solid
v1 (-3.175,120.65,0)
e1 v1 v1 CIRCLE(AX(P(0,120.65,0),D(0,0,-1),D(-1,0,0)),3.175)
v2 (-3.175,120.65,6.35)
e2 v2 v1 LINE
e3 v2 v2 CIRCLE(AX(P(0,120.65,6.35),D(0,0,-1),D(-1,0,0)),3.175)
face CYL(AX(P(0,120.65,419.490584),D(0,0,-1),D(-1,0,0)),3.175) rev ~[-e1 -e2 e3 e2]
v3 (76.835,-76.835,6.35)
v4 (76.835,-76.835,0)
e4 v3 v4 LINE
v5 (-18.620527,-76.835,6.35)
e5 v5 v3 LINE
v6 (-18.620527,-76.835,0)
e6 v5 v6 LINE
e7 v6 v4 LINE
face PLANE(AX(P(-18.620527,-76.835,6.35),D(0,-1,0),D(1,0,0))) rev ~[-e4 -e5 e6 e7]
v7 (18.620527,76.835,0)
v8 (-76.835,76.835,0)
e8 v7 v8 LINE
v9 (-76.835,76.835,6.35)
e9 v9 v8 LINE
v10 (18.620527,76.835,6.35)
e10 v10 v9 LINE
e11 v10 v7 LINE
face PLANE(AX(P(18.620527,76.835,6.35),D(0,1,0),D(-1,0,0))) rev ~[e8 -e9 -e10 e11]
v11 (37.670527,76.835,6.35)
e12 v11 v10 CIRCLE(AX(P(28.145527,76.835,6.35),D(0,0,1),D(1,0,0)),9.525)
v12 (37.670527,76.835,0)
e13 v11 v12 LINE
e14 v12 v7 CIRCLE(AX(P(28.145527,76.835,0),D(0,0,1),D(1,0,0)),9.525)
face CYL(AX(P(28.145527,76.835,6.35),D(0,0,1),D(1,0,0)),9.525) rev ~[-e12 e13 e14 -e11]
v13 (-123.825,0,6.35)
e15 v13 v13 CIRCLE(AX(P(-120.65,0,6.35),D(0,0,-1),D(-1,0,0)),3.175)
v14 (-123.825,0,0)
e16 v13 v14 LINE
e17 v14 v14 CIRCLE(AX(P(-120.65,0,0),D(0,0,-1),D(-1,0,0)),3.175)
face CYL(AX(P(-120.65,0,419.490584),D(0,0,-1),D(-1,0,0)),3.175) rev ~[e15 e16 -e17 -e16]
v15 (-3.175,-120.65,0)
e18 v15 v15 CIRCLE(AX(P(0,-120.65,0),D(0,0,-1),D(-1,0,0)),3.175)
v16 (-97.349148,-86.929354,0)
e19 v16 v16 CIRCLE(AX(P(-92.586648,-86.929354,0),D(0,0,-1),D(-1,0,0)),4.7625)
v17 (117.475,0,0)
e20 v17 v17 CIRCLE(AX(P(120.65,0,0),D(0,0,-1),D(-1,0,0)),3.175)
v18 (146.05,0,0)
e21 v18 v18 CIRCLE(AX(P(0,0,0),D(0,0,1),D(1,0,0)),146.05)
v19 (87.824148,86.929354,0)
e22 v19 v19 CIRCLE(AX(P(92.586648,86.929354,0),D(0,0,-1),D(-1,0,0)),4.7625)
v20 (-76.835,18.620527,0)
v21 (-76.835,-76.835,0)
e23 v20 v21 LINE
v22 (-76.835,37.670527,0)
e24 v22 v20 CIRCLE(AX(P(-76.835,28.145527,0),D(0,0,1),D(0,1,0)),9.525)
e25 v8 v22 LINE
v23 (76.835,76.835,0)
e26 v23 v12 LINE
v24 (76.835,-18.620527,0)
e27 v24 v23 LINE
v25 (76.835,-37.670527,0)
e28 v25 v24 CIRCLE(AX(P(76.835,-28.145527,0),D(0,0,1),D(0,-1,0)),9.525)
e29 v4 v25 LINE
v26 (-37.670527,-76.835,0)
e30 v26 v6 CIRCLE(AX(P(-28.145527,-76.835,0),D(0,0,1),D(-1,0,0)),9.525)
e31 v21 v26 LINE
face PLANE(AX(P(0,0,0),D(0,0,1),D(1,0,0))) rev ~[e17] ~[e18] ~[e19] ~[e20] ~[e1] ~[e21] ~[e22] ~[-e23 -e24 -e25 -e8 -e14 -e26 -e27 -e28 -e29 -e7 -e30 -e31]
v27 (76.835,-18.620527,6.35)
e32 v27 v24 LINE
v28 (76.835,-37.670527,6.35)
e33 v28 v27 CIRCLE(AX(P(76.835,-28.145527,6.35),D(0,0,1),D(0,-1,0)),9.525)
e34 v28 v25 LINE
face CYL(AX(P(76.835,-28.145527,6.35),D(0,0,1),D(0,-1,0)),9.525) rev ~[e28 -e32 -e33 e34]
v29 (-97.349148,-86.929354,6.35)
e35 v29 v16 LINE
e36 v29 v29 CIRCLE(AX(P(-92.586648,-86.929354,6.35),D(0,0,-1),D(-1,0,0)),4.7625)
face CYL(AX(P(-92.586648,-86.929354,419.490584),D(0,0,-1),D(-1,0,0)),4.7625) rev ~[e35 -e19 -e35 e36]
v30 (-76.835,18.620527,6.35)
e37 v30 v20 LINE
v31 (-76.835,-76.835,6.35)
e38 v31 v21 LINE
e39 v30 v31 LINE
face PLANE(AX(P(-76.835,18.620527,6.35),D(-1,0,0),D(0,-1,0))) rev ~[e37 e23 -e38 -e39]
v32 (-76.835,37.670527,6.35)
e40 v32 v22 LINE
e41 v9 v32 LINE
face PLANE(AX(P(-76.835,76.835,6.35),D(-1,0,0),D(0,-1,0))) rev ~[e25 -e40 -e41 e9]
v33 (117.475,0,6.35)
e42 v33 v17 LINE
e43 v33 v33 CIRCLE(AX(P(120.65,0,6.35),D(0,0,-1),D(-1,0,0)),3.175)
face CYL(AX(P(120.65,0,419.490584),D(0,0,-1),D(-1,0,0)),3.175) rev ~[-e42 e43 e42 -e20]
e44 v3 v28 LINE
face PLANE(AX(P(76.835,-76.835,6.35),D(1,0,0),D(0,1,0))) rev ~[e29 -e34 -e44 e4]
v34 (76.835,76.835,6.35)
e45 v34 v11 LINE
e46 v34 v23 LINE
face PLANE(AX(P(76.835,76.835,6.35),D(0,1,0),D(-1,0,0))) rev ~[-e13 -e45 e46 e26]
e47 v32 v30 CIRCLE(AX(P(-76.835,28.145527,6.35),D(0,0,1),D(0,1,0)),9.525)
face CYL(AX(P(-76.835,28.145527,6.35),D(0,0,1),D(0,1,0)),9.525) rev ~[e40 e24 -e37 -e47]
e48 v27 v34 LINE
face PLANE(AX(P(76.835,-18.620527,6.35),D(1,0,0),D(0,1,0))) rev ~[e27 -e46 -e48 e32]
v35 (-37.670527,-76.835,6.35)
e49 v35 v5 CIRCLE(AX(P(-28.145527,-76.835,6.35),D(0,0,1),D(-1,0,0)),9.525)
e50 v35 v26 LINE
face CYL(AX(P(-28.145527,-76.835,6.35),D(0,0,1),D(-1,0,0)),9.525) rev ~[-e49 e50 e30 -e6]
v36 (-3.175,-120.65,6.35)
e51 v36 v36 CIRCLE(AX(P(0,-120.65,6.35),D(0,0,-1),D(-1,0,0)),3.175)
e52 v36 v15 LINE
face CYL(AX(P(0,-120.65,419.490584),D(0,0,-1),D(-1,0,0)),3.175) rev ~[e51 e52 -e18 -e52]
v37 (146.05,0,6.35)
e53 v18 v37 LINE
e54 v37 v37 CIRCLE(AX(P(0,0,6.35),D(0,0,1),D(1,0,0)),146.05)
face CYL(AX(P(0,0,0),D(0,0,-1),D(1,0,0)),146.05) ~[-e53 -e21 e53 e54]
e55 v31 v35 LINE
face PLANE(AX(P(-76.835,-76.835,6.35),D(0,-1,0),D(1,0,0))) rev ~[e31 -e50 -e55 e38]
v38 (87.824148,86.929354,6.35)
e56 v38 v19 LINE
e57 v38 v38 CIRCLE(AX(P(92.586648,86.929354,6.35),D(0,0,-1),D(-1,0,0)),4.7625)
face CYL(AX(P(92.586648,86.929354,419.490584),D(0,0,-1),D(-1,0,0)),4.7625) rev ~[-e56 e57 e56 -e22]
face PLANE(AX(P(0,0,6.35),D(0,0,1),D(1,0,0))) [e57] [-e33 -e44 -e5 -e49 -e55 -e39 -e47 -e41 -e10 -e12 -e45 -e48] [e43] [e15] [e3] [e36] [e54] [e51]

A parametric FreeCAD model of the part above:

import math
import FreeCAD as App
import Part
import Sketcher
from FreeCAD import Vector
Q = App.Units.Quantity

doc = App.newDocument("Part")
body = doc.addObject("PartDesign::Body", "Body")

# Sketch on XY plane
sketch1 = doc.addObject("Sketcher::SketchObject", "Sketch")
body.addObject(sketch1)
sketch1.AttachmentSupport = (doc.XY_Plane, [""])
sketch1.MapMode = "FlatFace"
sketch1.addGeometry(Part.Circle(Vector(0, 0, 0), Vector(0, 0, 1), 146.05), False)
sketch1.addConstraint(Sketcher.Constraint("Coincident", 0, 3, -1, 1))
sketch1.addConstraint(Sketcher.Constraint("Diameter", 0, Q("11.5 in")))
pad1 = doc.addObject("PartDesign::Pad", "Pad")
body.addObject(pad1)
pad1.Profile = sketch1
pad1.Length = Q("0.25 in")

# Sketch on XY plane
sketch2 = doc.addObject("Sketcher::SketchObject", "Sketch001")
body.addObject(sketch2)
sketch2.AttachmentSupport = (doc.XY_Plane, [""])
sketch2.MapMode = "FlatFace"
sketch2.AttachmentOffset = App.Placement(Vector(0, 0, 0.25 * 25.4), App.Rotation())
sketch2.addGeometry(Part.Circle(Vector(120.65, 0, 0), Vector(0, 0, 1), 3.175), False)
sketch2.addGeometry(Part.Circle(Vector(0, -120.65, 0), Vector(0, 0, 1), 3.175), False)
sketch2.addGeometry(Part.Circle(Vector(-120.65, 0, 0), Vector(0, 0, 1), 3.175), False)
sketch2.addGeometry(Part.Circle(Vector(0, 120.65, 0), Vector(0, 0, 1), 3.175), False)
sketch2.addConstraint(Sketcher.Constraint("Equal", 0, 1))
sketch2.addConstraint(Sketcher.Constraint("Equal", 1, 2))
sketch2.addConstraint(Sketcher.Constraint("Equal", 2, 3))
sketch2.addConstraint(Sketcher.Constraint("Symmetric", 0, 3, 2, 3, -1, 1))
sketch2.addConstraint(Sketcher.Constraint("Symmetric", 1, 3, 3, 3, -1, 1))
sketch2.addConstraint(Sketcher.Constraint("PointOnObject", 0, 3, -1))
sketch2.addConstraint(Sketcher.Constraint("PointOnObject", 1, 3, -2))
sketch2.addConstraint(Sketcher.Constraint("Diameter", 0, Q("0.25 in")))
sketch2.addConstraint(Sketcher.Constraint("DistanceX", 2, 3, 0, 3, Q("9.5 in")))
sketch2.addConstraint(Sketcher.Constraint("DistanceY", 1, 3, 3, 3, Q("9.5 in")))
doc.recompute()
hole = doc.addObject("PartDesign::Hole", "Hole")
body.addObject(hole)
hole.Profile = sketch2
hole.ThreadType = "None"
hole.Diameter = Q("0.25 in")
hole.DepthType = "ThroughAll"

# Sketch on XY plane
sketch3 = doc.addObject("Sketcher::SketchObject", "Sketch002")
body.addObject(sketch3)
sketch3.AttachmentSupport = (doc.XY_Plane, [""])
sketch3.MapMode = "FlatFace"
sketch3.AttachmentOffset = App.Placement(Vector(0, 0, 0.25 * 25.4), App.Rotation())
sketch3.addGeometry(Part.Circle(Vector(-92.586648, -86.929354, 0), Vector(0, 0, 1), 4.7625), False)
sketch3.addGeometry(Part.Circle(Vector(92.586648, 86.929354, 0), Vector(0, 0, 1), 4.7625), False)
sketch3.addConstraint(Sketcher.Constraint("Equal", 0, 1))
sketch3.addConstraint(Sketcher.Constraint("Symmetric", 0, 3, 1, 3, -1, 1))
sketch3.addConstraint(Sketcher.Constraint("Diameter", 0, Q("0.375 in")))
sketch3.addConstraint(Sketcher.Constraint("DistanceY", 0, 3, 1, 3, 173.858708))
sketch3.addConstraint(Sketcher.Constraint("DistanceX", 0, 3, -1, 1, 92.586648))
doc.recompute()
hole2 = doc.addObject("PartDesign::Hole", "Hole001")
body.addObject(hole2)
hole2.Profile = sketch3
hole2.ThreadType = "None"
hole2.Diameter = Q("0.375 in")
hole2.DepthType = "ThroughAll"

# Sketch on XY plane
sketch4 = doc.addObject("Sketcher::SketchObject", "Sketch003")
body.addObject(sketch4)
sketch4.AttachmentSupport = (doc.XY_Plane, [""])
sketch4.MapMode = "FlatFace"
sketch4.AttachmentOffset = App.Placement(Vector(0, 0, 0.25 * 25.4), App.Rotation())
sketch4.addGeometry(Part.LineSegment(Vector(76.835, -18.620527, 0), Vector(76.835, 76.835, 0)), False)
sketch4.addGeometry(Part.LineSegment(Vector(76.835, 76.835, 0), Vector(37.670527, 76.835, 0)), False)
sketch4.addGeometry(Part.ArcOfCircle(Part.Circle(Vector(28.145527, 76.835, 0), Vector(0, 0, 1), 9.525), math.radians(0), math.radians(180)), False)
sketch4.addGeometry(Part.LineSegment(Vector(18.620527, 76.835, 0), Vector(-76.835, 76.835, 0)), False)
sketch4.addGeometry(Part.LineSegment(Vector(-76.835, 76.835, 0), Vector(-76.835, 37.670527, 0)), False)
sketch4.addGeometry(Part.ArcOfCircle(Part.Circle(Vector(-76.835, 28.145527, 0), Vector(0, 0, 1), 9.525), math.radians(90), math.radians(270)), False)
sketch4.addGeometry(Part.LineSegment(Vector(-76.835, 18.620527, 0), Vector(-76.835, -76.835, 0)), False)
sketch4.addGeometry(Part.LineSegment(Vector(-76.835, -76.835, 0), Vector(-37.670527, -76.835, 0)), False)
sketch4.addGeometry(Part.ArcOfCircle(Part.Circle(Vector(-28.145527, -76.835, 0), Vector(0, 0, 1), 9.525), math.radians(180), math.radians(360)), False)
sketch4.addGeometry(Part.LineSegment(Vector(-18.620527, -76.835, 0), Vector(76.835, -76.835, 0)), False)
sketch4.addGeometry(Part.LineSegment(Vector(76.835, -76.835, 0), Vector(76.835, -37.670527, 0)), False)
sketch4.addGeometry(Part.ArcOfCircle(Part.Circle(Vector(76.835, -28.145527, 0), Vector(0, 0, 1), 9.525), math.radians(-90), math.radians(90)), False)
sketch4.addConstraint(Sketcher.Constraint("Coincident", 0, 2, 1, 1))
sketch4.addConstraint(Sketcher.Constraint("Coincident", 1, 2, 2, 1))
sketch4.addConstraint(Sketcher.Constraint("Coincident", 2, 2, 3, 1))
sketch4.addConstraint(Sketcher.Constraint("Coincident", 3, 2, 4, 1))
sketch4.addConstraint(Sketcher.Constraint("Coincident", 4, 2, 5, 1))
sketch4.addConstraint(Sketcher.Constraint("Coincident", 5, 2, 6, 1))
sketch4.addConstraint(Sketcher.Constraint("Coincident", 6, 2, 7, 1))
sketch4.addConstraint(Sketcher.Constraint("Coincident", 7, 2, 8, 1))
sketch4.addConstraint(Sketcher.Constraint("Coincident", 8, 2, 9, 1))
sketch4.addConstraint(Sketcher.Constraint("Coincident", 9, 2, 10, 1))
sketch4.addConstraint(Sketcher.Constraint("Coincident", 10, 2, 11, 1))
sketch4.addConstraint(Sketcher.Constraint("Coincident", 11, 2, 0, 1))
sketch4.addConstraint(Sketcher.Constraint("Vertical", 0))
sketch4.addConstraint(Sketcher.Constraint("Horizontal", 1))
sketch4.addConstraint(Sketcher.Constraint("Horizontal", 3))
sketch4.addConstraint(Sketcher.Constraint("Vertical", 4))
sketch4.addConstraint(Sketcher.Constraint("Vertical", 6))
sketch4.addConstraint(Sketcher.Constraint("Horizontal", 7))
sketch4.addConstraint(Sketcher.Constraint("Horizontal", 9))
sketch4.addConstraint(Sketcher.Constraint("Vertical", 10))
sketch4.addConstraint(Sketcher.Constraint("Equal", 2, 5))
sketch4.addConstraint(Sketcher.Constraint("Equal", 5, 8))
sketch4.addConstraint(Sketcher.Constraint("Equal", 8, 11))
sketch4.addConstraint(Sketcher.Constraint("Symmetric", 2, 3, 8, 3, -1, 1))
sketch4.addConstraint(Sketcher.Constraint("Symmetric", 5, 3, 11, 3, -1, 1))
sketch4.addConstraint(Sketcher.Constraint("Symmetric", 0, 2, 6, 2, -1, 1))
sketch4.addConstraint(Sketcher.Constraint("Symmetric", 3, 2, 9, 2, -1, 1))
sketch4.addConstraint(Sketcher.Constraint("Symmetric", 0, 2, 3, 2, -2))
sketch4.addConstraint(Sketcher.Constraint("Horizontal", 2, 3, 0, 2))
sketch4.addConstraint(Sketcher.Constraint("Vertical", 11, 3, 0, 2))
sketch4.addConstraint(Sketcher.Constraint("Equal", 9, 0))
sketch4.addConstraint(Sketcher.Constraint("Equal", 7, 4))
sketch4.addConstraint(Sketcher.Constraint("Radius", 2, Q("0.375 in")))
sketch4.addConstraint(Sketcher.Constraint("DistanceY", 8, 3, 2, 3, Q("6.05 in")))
sketch4.addConstraint(Sketcher.Constraint("DistanceX", 1, 2, 1, 1, 39.164473))
pocket1 = doc.addObject("PartDesign::Pocket", "Pocket")
body.addObject(pocket1)
pocket1.Profile = sketch4
pocket1.Type = "ThroughAll"

doc.recompute()
